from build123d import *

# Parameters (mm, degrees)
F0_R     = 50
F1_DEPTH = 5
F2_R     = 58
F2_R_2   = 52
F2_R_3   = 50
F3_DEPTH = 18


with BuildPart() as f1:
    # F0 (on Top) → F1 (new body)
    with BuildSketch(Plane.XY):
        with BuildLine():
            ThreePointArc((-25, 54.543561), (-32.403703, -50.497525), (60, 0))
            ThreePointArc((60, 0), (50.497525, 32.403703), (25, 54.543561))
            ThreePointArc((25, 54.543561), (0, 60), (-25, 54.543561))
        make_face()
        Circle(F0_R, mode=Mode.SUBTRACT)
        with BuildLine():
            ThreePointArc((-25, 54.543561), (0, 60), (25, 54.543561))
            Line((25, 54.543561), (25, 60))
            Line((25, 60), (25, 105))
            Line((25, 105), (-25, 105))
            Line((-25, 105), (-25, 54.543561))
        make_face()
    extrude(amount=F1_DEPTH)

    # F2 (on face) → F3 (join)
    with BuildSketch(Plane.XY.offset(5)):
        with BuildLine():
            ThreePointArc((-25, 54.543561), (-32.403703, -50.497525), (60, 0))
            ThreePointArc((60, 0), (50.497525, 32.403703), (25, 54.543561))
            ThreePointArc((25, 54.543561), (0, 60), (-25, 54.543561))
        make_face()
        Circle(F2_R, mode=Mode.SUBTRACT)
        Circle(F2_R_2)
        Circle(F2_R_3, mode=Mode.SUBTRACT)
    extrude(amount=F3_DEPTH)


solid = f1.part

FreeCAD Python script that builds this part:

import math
import FreeCAD as App
import Part
import Sketcher
from FreeCAD import Vector
Q = App.Units.Quantity

doc = App.newDocument("Part")
body = doc.addObject("PartDesign::Body", "Body")

# Sketch on XY plane
sketch1 = body.newObject("Sketcher::SketchObject", "Sketch")
sketch1.AttachmentSupport = (doc.getObject("XY_Plane"), [""])
sketch1.MapMode = "FlatFace"
sketch1.addGeometry([
    Part.ArcOfCircle(Part.Circle(Vector(0, 0, 0), Vector(0, 0, 1), 60), math.radians(115), math.radians(360)),  # 0
    Part.ArcOfCircle(Part.Circle(Vector(0, 0, 0), Vector(0, 0, 1), 60), math.radians(0), math.radians(65)),  # 1
    Part.LineSegment(Vector(25, 55, 0), Vector(25, 105, 0)),  # 2
    Part.LineSegment(Vector(25, 105, 0), Vector(-25, 105, 0)),  # 3
    Part.LineSegment(Vector(-25, 105, 0), Vector(-25, 55, 0)),  # 4
    Part.Circle(Vector(0, 0, 0), Vector(0, 0, 1), 50),  # 5
], False)
sketch1.addConstraint([
    Sketcher.Constraint("Tangent", 0, 2, 1, 1),
    Sketcher.Constraint("Coincident", 1, 2, 2, 1),
    Sketcher.Constraint("Coincident", 2, 2, 3, 1),
    Sketcher.Constraint("Coincident", 3, 2, 4, 1),
    Sketcher.Constraint("Coincident", 4, 2, 0, 1),
    Sketcher.Constraint("Vertical", 2),
    Sketcher.Constraint("Horizontal", 3),
    Sketcher.Constraint("Vertical", 4),
    Sketcher.Constraint("Coincident", 0, 3, -1, 1),
    Sketcher.Constraint("Coincident", 5, 3, -1, 1),
    Sketcher.Constraint("Equal", 0, 1),
    Sketcher.Constraint("PointOnObject", 0, 2, -1),
    Sketcher.Constraint("Horizontal", 1, 2, 4, 2),
    Sketcher.Constraint("Diameter", 5, Q("100 mm")),
    Sketcher.Constraint("Radius", 0, Q("60 mm")),
    Sketcher.Constraint("DistanceX", 3, 2, 3, 1, Q("50 mm")),
    Sketcher.Constraint("DistanceY", -1, 1, 2, 2, Q("105 mm")),
])
pad1 = body.newObject("PartDesign::Pad", "Pad")
pad1.Profile = sketch1
pad1.Length = 5

# Sketch on XY plane
sketch2 = body.newObject("Sketcher::SketchObject", "Sketch001")
sketch2.AttachmentSupport = (doc.getObject("XY_Plane"), [""])
sketch2.MapMode = "FlatFace"
sketch2.AttachmentOffset = App.Placement(Vector(0, 0, 5), App.Rotation())
sketch2.addGeometry([
    Part.ArcOfCircle(Part.Circle(Vector(0, 0, 0), Vector(0, 0, 1), 60), math.radians(115), math.radians(360)),  # 0
    Part.ArcOfCircle(Part.Circle(Vector(0, 0, 0), Vector(0, 0, 1), 60), math.radians(0), math.radians(65)),  # 1
    Part.ArcOfCircle(Part.Circle(Vector(0, 0, 0), Vector(0, 0, 1), 60), math.radians(65), math.radians(115)),  # 2
    Part.Circle(Vector(0, 0, 0), Vector(0, 0, 1), 58),  # 3
    Part.Circle(Vector(0, 0, 0), Vector(0, 0, 1), 52),  # 4
    Part.Circle(Vector(0, 0, 0), Vector(0, 0, 1), 50),  # 5
], False)
sketch2.addConstraint([
    Sketcher.Constraint("Tangent", 0, 2, 1, 1),
    Sketcher.Constraint("Tangent", 1, 2, 2, 1),
    Sketcher.Constraint("Tangent", 2, 2, 0, 1),
    Sketcher.Constraint("Coincident", 0, 3, -1, 1),
    Sketcher.Constraint("Coincident", 3, 3, -1, 1),
    Sketcher.Constraint("Coincident", 4, 3, -1, 1),
    Sketcher.Constraint("Coincident", 5, 3, -1, 1),
    Sketcher.Constraint("PointOnObject", 0, 2, -1),
    Sketcher.Constraint("Horizontal", 1, 2, 2, 2),
    Sketcher.Constraint("Diameter", 3, Q("116 mm")),
    Sketcher.Constraint("Diameter", 4, Q("104 mm")),
    Sketcher.Constraint("Diameter", 5, Q("100 mm")),
    Sketcher.Constraint("Radius", 0, Q("60 mm")),
    Sketcher.Constraint("DistanceX", -1, 1, 1, 2, Q("25 mm")),
])
pad2 = body.newObject("PartDesign::Pad", "Pad001")
pad2.Profile = sketch2
pad2.Length = 18

doc.recompute()
